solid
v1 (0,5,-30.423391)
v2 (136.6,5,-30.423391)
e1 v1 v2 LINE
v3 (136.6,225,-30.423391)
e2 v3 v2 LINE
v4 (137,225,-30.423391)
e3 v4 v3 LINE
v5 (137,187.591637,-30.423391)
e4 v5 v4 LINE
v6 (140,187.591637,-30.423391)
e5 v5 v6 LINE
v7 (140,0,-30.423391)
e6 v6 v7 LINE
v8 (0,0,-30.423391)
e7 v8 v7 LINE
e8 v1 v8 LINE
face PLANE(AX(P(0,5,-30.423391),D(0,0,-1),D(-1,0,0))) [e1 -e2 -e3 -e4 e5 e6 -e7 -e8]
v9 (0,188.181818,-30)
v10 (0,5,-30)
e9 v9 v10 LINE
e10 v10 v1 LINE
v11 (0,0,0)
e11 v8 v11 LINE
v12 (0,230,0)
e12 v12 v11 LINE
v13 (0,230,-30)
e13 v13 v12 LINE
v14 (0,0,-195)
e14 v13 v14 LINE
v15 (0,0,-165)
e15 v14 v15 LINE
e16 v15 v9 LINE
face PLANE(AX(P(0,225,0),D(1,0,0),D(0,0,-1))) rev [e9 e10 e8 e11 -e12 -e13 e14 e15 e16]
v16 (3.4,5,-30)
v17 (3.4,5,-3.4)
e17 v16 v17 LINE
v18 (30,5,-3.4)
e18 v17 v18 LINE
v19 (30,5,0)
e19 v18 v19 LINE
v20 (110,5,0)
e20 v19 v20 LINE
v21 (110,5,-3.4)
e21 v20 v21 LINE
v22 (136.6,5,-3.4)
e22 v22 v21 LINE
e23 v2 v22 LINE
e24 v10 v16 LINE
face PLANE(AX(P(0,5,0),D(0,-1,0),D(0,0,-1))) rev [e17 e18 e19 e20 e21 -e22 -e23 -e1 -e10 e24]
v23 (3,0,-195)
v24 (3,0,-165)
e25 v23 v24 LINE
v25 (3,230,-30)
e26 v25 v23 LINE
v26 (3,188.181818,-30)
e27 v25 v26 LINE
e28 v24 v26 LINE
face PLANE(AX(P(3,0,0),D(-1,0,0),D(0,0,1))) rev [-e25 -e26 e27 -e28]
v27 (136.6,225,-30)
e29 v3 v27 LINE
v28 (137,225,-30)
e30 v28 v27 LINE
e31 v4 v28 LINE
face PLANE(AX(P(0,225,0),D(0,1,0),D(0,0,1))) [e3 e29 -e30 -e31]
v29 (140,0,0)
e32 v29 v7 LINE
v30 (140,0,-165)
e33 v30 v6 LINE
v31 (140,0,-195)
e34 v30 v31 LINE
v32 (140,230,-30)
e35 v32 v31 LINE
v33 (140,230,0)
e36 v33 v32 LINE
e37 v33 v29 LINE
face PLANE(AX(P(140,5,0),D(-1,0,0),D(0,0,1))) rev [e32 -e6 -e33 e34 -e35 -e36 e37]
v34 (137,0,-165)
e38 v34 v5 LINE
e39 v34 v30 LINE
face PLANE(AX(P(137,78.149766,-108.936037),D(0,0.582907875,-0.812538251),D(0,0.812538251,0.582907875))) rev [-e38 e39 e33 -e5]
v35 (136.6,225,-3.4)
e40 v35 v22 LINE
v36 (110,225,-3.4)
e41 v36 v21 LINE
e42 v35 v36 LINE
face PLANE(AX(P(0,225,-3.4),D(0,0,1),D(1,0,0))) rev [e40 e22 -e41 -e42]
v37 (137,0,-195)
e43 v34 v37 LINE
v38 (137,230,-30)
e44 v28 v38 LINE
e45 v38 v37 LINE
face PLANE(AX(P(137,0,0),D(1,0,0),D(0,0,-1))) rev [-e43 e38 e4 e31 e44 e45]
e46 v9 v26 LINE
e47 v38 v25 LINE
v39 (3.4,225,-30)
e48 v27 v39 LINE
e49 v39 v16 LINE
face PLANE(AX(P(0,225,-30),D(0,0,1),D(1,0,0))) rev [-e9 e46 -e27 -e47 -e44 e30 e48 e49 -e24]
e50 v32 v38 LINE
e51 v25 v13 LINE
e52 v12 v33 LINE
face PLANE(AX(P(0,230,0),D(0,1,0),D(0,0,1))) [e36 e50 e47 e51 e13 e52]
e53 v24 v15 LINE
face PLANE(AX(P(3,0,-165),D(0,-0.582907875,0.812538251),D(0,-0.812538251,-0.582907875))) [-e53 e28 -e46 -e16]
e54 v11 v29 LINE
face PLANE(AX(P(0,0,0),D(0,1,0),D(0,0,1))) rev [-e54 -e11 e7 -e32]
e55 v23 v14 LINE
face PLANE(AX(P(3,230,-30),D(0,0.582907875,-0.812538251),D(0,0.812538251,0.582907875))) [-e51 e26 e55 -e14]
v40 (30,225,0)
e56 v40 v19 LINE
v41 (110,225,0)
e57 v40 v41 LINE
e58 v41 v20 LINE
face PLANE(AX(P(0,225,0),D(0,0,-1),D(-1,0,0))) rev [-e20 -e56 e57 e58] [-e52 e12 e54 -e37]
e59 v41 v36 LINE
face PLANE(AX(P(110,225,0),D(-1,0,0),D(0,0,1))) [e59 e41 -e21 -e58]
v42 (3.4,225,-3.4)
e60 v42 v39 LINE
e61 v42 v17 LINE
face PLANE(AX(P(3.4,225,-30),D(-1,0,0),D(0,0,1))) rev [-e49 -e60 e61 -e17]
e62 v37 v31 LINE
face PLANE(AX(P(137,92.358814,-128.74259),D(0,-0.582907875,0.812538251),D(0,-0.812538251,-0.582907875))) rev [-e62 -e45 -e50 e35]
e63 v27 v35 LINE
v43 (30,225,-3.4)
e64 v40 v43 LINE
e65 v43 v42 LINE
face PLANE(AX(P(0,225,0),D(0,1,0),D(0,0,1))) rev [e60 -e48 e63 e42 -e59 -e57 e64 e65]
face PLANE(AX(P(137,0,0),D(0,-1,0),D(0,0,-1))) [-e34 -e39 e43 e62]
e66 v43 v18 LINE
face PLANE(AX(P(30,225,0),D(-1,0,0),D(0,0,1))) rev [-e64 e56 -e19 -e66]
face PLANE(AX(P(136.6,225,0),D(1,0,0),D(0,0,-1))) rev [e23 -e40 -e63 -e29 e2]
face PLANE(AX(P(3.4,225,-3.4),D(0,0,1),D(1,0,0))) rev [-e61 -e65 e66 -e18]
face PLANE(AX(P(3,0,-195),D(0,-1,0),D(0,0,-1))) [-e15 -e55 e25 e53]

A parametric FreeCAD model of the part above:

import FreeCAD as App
import Part
import Sketcher
Q = App.Units.Quantity


def add_polygon(sketch, points):
    """Adds a closed chain of lines whose ends are joined by coincident constraints."""
    first, n = sketch.GeometryCount, len(points)
    for a, b in zip(points, points[1:] + points[:1]):
        sketch.addGeometry(Part.LineSegment(App.Vector(*a, 0), App.Vector(*b, 0)), False)
    for i in range(n):
        sketch.addConstraint(Sketcher.Constraint("Coincident", first + i, 2, first + (i + 1) % n, 1))

doc = App.newDocument("Part")
body = doc.addObject("PartDesign::Body", "Body")

# Sketch on XZ plane
sketch1 = body.newObject("Sketcher::SketchObject", "Sketch")
sketch1.AttachmentSupport = (doc.getObject("XZ_Plane"), [""])
sketch1.MapMode = "FlatFace"
add_polygon(sketch1, [(0, -30), (0, 0), (30, 0), (30, -3.4), (3.4, -3.4), (3.4, -30)])  # lines 0-5
sketch1.addConstraint([
    Sketcher.Constraint("Vertical", 0),
    Sketcher.Constraint("Horizontal", 1),
    Sketcher.Constraint("Vertical", 2),
    Sketcher.Constraint("Horizontal", 3),
    Sketcher.Constraint("Vertical", 4),
    Sketcher.Constraint("Horizontal", 5),
    Sketcher.Constraint("Coincident", 0, 2, -1, 1),
    Sketcher.Constraint("Equal", 1, 0),
    Sketcher.Constraint("Equal", 5, 2),
    Sketcher.Constraint("DistanceX", 1, 1, 1, 2, Q("30 mm")),
    Sketcher.Constraint("DistanceX", 3, 2, 3, 1, Q("26.6 mm")),
])
pad1 = body.newObject("PartDesign::Pad", "Pad")
pad1.Profile = sketch1
pad1.Length = 225
pad1.Reversed = True

# Sketch on XZ plane
sketch2 = body.newObject("Sketcher::SketchObject", "Sketch001")
sketch2.AttachmentSupport = (doc.getObject("XZ_Plane"), [""])
sketch2.MapMode = "FlatFace"
add_polygon(sketch2, [(140, 0), (30, 0), (30, -3.4), (3.4, -3.4), (3.4, -30), (0, -30), (0, -30.423391), (140, -30.423391)])  # lines 0-7
sketch2.addConstraint([
    Sketcher.Constraint("Horizontal", 0),
    Sketcher.Constraint("Vertical", 1),
    Sketcher.Constraint("Horizontal", 2),
    Sketcher.Constraint("Vertical", 3),
    Sketcher.Constraint("Horizontal", 4),
    Sketcher.Constraint("Vertical", 5),
    Sketcher.Constraint("Horizontal", 6),
    Sketcher.Constraint("Vertical", 7),
    Sketcher.Constraint("PointOnObject", 0, 2, -1),
    Sketcher.Constraint("PointOnObject", 4, 2, -2),
    Sketcher.Constraint("Equal", 4, 1),
    Sketcher.Constraint("Equal", 2, 3),
    Sketcher.Constraint("DistanceX", 0, 2, 0, 1, Q("110 mm")),
    Sketcher.Constraint("DistanceX", 6, 1, 6, 2, Q("140 mm")),
    Sketcher.Constraint("DistanceX", 2, 2, 2, 1, Q("26.6 mm")),
    Sketcher.Constraint("DistanceY", 5, 2, 5, 1, Q("0.423391 mm")),
])
pad2 = body.newObject("PartDesign::Pad", "Pad001")
pad2.Profile = sketch2
pad2.Length = 5
pad2.Reversed = True

# Sketch on XZ plane
sketch3 = body.newObject("Sketcher::SketchObject", "Sketch002")
sketch3.AttachmentSupport = (doc.getObject("XZ_Plane"), [""])
sketch3.MapMode = "FlatFace"
sketch3.AttachmentOffset = App.Placement(App.Vector(0, 0, -5), App.Rotation())
add_polygon(sketch3, [(140, 0), (140, -30.423391), (136.6, -30.423391), (136.6, -3.4), (110, -3.4), (110, 0)])  # lines 0-5
sketch3.addConstraint([
    Sketcher.Constraint("Vertical", 0),
    Sketcher.Constraint("Horizontal", 1),
    Sketcher.Constraint("Vertical", 2),
    Sketcher.Constraint("Horizontal", 3),
    Sketcher.Constraint("Vertical", 4),
    Sketcher.Constraint("Horizontal", 5),
    Sketcher.Constraint("PointOnObject", 4, 2, -1),
    Sketcher.Constraint("Equal", 1, 4),
    Sketcher.Constraint("DistanceX", 5, 1, 5, 2, Q("30 mm")),
    Sketcher.Constraint("DistanceX", 1, 2, 1, 1, Q("3.4 mm")),
    Sketcher.Constraint("DistanceX", -1, 1, 0, 2, Q("140 mm")),
    Sketcher.Constraint("DistanceY", 0, 2, 0, 1, Q("30.423391 mm")),
])
pad3 = body.newObject("PartDesign::Pad", "Pad002")
pad3.Profile = sketch3
pad3.Length = 220
pad3.Reversed = True

# Sketch on XZ plane
sketch4 = body.newObject("Sketcher::SketchObject", "Sketch003")
sketch4.AttachmentSupport = (doc.getObject("XZ_Plane"), [""])
sketch4.MapMode = "FlatFace"
sketch4.AttachmentOffset = App.Placement(App.Vector(0, 0, -225), App.Rotation())
add_polygon(sketch4, [(0, -30), (0, 0), (140, 0), (140, -30)])  # lines 0-3
sketch4.addConstraint([
    Sketcher.Constraint("Vertical", 0),
    Sketcher.Constraint("Horizontal", 1),
    Sketcher.Constraint("Vertical", 2),
    Sketcher.Constraint("Horizontal", 3),
    Sketcher.Constraint("Coincident", 0, 2, -1, 1),
    Sketcher.Constraint("DistanceX", 1, 1, 1, 2, Q("140 mm")),
    Sketcher.Constraint("DistanceY", 0, 1, 0, 2, Q("30 mm")),
])
pad4 = body.newObject("PartDesign::Pad", "Pad003")
pad4.Profile = sketch4
pad4.Length = 5
pad4.Reversed = True

# Sketch on YZ plane
sketch5 = body.newObject("Sketcher::SketchObject", "Sketch004")
sketch5.AttachmentSupport = (doc.getObject("YZ_Plane"), [""])
sketch5.MapMode = "FlatFace"
sketch5.AttachmentOffset = App.Placement(App.Vector(0, 0, 140), App.Rotation())
add_polygon(sketch5, [(30, -143.478261), (0, -165), (0, -195), (230, -30), (225, -30), (225, -30.423391), (187.591637, -30.423391)])  # lines 0-6
sketch5.addConstraint([
    Sketcher.Constraint("Vertical", 1),
    Sketcher.Constraint("Horizontal", 3),
    Sketcher.Constraint("Vertical", 4),
    Sketcher.Constraint("Horizontal", 5),
    Sketcher.Constraint("PointOnObject", 0, 2, -2),
    Sketcher.Constraint("Parallel", 0, 2),
    Sketcher.Constraint("Parallel", 2, 6),
    Sketcher.Constraint("DistanceX", 3, 2, 3, 1, Q("5 mm")),
    Sketcher.Constraint("DistanceY", 1, 2, 1, 1, Q("30 mm")),
    Sketcher.Constraint("DistanceY", 0, 2, -1, 1, Q("165 mm")),
    Sketcher.Constraint("DistanceX", -1, 1, 2, 2, Q("230 mm")),
    Sketcher.Constraint("DistanceY", 2, 2, -1, 1, Q("30 mm")),
    Sketcher.Constraint("DistanceX", -1, 1, 6, 2, Q("30 mm")),
    Sketcher.Constraint("DistanceY", 4, 2, 4, 1, Q("0.423391 mm")),
])
pad5 = body.newObject("PartDesign::Pad", "Pad004")
pad5.Profile = sketch5
pad5.Length = 3
pad5.Reversed = True

# Sketch on YZ plane
sketch6 = body.newObject("Sketcher::SketchObject", "Sketch005")
sketch6.AttachmentSupport = (doc.getObject("YZ_Plane"), [""])
sketch6.MapMode = "FlatFace"
add_polygon(sketch6, [(230, -30), (0, -195), (0, -165), (230, 0)])  # lines 0-3
sketch6.addConstraint([
    Sketcher.Constraint("Vertical", 1),
    Sketcher.Constraint("Vertical", 3),
    Sketcher.Constraint("PointOnObject", 0, 2, -2),
    Sketcher.Constraint("PointOnObject", 2, 2, -1),
    Sketcher.Constraint("Parallel", 0, 2),
    Sketcher.Constraint("DistanceY", 1, 1, 1, 2, Q("30 mm")),
    Sketcher.Constraint("DistanceY", 0, 2, -1, 1, Q("195 mm")),
    Sketcher.Constraint("DistanceX", -1, 1, 2, 2, Q("230 mm")),
])
pad6 = body.newObject("PartDesign::Pad", "Pad005")
pad6.Profile = sketch6
pad6.Length = 3

doc.recompute()
